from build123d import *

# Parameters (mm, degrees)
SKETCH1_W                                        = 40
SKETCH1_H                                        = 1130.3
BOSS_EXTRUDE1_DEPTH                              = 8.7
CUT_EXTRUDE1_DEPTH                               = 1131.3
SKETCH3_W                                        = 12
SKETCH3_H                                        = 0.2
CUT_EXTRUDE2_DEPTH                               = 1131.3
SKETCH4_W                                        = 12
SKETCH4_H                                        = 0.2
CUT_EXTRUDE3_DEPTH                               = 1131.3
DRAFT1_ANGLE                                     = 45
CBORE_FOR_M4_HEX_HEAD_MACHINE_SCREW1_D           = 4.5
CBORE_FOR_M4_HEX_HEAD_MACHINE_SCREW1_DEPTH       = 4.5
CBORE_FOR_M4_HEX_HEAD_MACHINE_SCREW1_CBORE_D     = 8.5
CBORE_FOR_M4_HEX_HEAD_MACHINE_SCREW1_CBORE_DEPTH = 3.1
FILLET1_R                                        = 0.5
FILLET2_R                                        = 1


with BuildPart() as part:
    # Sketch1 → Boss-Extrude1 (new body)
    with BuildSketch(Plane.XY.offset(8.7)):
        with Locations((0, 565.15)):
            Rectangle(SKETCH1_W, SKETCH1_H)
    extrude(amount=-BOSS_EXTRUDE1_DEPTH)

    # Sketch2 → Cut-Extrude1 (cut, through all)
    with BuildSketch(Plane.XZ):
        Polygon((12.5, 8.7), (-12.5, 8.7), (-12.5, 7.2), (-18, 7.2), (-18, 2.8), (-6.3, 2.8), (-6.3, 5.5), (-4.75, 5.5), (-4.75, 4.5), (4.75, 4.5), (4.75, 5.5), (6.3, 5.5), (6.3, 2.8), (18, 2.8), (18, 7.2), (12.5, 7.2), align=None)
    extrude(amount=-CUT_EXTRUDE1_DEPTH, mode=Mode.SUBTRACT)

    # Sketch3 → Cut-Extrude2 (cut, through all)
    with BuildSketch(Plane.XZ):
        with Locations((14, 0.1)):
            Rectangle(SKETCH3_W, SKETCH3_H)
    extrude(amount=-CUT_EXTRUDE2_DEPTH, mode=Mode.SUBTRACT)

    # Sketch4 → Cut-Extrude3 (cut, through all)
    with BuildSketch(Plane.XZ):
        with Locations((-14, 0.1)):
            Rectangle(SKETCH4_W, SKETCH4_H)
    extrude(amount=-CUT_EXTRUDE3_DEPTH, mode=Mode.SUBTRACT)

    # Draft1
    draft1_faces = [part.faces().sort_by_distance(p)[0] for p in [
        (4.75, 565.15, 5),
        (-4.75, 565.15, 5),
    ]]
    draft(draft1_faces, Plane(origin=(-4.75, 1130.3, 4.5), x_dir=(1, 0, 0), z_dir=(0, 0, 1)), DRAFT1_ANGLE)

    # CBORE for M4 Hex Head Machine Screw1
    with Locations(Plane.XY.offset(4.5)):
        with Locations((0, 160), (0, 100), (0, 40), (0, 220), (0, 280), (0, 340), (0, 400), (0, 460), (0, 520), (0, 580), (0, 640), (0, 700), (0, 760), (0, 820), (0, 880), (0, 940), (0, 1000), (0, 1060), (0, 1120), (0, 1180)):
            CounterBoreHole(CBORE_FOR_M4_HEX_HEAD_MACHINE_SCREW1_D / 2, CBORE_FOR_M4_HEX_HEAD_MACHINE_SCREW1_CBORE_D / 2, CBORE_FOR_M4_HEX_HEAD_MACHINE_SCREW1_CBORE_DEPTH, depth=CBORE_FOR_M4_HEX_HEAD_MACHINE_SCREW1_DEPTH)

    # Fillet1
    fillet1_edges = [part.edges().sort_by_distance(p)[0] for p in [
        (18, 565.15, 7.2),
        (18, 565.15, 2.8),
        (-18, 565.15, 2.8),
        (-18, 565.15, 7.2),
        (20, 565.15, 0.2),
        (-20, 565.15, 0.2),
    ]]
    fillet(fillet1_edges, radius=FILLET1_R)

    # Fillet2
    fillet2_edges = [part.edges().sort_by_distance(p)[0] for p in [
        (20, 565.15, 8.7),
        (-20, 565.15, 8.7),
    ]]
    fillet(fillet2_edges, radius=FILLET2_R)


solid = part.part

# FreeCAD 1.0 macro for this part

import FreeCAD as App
import Part
import Sketcher
from FreeCAD import Vector
Q = App.Units.Quantity


def edges_at(feature, points):
    """Names of the edges that pass closest to the given points."""
    edges = feature.Shape.Edges
    near = lambda p: min(range(len(edges)), key=lambda i: edges[i].distToShape(Part.Vertex(*p))[0])
    return sorted({f"Edge{near(p) + 1}" for p in points})


def faces_at(feature, points):
    """Names of the faces that lie closest to the given points."""
    faces = feature.Shape.Faces
    near = lambda p: min(range(len(faces)), key=lambda i: faces[i].distToShape(Part.Vertex(*p))[0])
    return sorted({f"Face{near(p) + 1}" for p in points})


def add_polygon(sketch, points):
    """Adds a closed chain of lines whose ends are joined by coincident constraints."""
    first, n = sketch.GeometryCount, len(points)
    for a, b in zip(points, points[1:] + points[:1]):
        sketch.addGeometry(Part.LineSegment(App.Vector(*a, 0), App.Vector(*b, 0)), False)
    for i in range(n):
        sketch.addConstraint(Sketcher.Constraint("Coincident", first + i, 2, first + (i + 1) % n, 1))

doc = App.newDocument("Part")
body = doc.addObject("PartDesign::Body", "Body")

# Sketch on XY plane
sketch1 = body.newObject("Sketcher::SketchObject", "Sketch")
sketch1.AttachmentSupport = (doc.getObject("XY_Plane"), [""])
sketch1.MapMode = "FlatFace"
sketch1.AttachmentOffset = App.Placement(Vector(0, 0, 8.7), App.Rotation())
add_polygon(sketch1, [(-20, 1130), (-20, 0), (20, 0), (20, 1130)])  # lines 0-3
sketch1.addConstraint(Sketcher.Constraint("Vertical", 0))
sketch1.addConstraint(Sketcher.Constraint("Horizontal", 1))
sketch1.addConstraint(Sketcher.Constraint("Vertical", 2))
sketch1.addConstraint(Sketcher.Constraint("Horizontal", 3))
sketch1.addConstraint(Sketcher.Constraint("Symmetric", 0, 2, 1, 2, -1, 1))
sketch1.addConstraint(Sketcher.Constraint("DistanceX", 1, 1, 1, 2, Q("40 mm")))
sketch1.addConstraint(Sketcher.Constraint("DistanceY", 0, 2, 0, 1, Q("1130.3 mm")))
pad1 = body.newObject("PartDesign::Pad", "Pad")
pad1.Profile = sketch1
pad1.Length = 8.7
pad1.Reversed = True

# Sketch on XZ plane
sketch2 = body.newObject("Sketcher::SketchObject", "Sketch001")
sketch2.AttachmentSupport = (doc.getObject("XZ_Plane"), [""])
sketch2.MapMode = "FlatFace"
add_polygon(sketch2, [(12.5, 8.7), (-12.5, 8.7), (-12.5, 7.2), (-18, 7.2), (-18, 2.8), (-6.3, 2.8), (-6.3, 5.5), (-4.8, 5.5), (-4.8, 4.5), (4.8, 4.5), (4.8, 5.5), (6.3, 5.5), (6.3, 2.8), (18, 2.8), (18, 7.2), (12.5, 7.2)])  # lines 0-15
sketch2.addConstraint(Sketcher.Constraint("Horizontal", 0))
sketch2.addConstraint(Sketcher.Constraint("Vertical", 1))
sketch2.addConstraint(Sketcher.Constraint("Horizontal", 2))
sketch2.addConstraint(Sketcher.Constraint("Vertical", 3))
sketch2.addConstraint(Sketcher.Constraint("Horizontal", 4))
sketch2.addConstraint(Sketcher.Constraint("Vertical", 5))
sketch2.addConstraint(Sketcher.Constraint("Horizontal", 6))
sketch2.addConstraint(Sketcher.Constraint("Vertical", 7))
sketch2.addConstraint(Sketcher.Constraint("Horizontal", 8))
sketch2.addConstraint(Sketcher.Constraint("Vertical", 9))
sketch2.addConstraint(Sketcher.Constraint("Horizontal", 10))
sketch2.addConstraint(Sketcher.Constraint("Vertical", 11))
sketch2.addConstraint(Sketcher.Constraint("Horizontal", 12))
sketch2.addConstraint(Sketcher.Constraint("Vertical", 13))
sketch2.addConstraint(Sketcher.Constraint("Horizontal", 14))
sketch2.addConstraint(Sketcher.Constraint("Vertical", 15))
sketch2.addConstraint(Sketcher.Constraint("Symmetric", 6, 2, 9, 2, -2))
sketch2.addConstraint(Sketcher.Constraint("Symmetric", 4, 2, 11, 2, -2))
sketch2.addConstraint(Sketcher.Constraint("Symmetric", 2, 2, 13, 2, -2))
sketch2.addConstraint(Sketcher.Constraint("Equal", 2, 14))
sketch2.addConstraint(Sketcher.Constraint("DistanceX", 0, 2, 0, 1, Q("25 mm")))
sketch2.addConstraint(Sketcher.Constraint("DistanceY", 7, 2, 7, 1, Q("1 mm")))
sketch2.addConstraint(Sketcher.Constraint("DistanceX", 2, 2, 2, 1, Q("5.5 mm")))
sketch2.addConstraint(Sketcher.Constraint("DistanceX", 4, 1, 4, 2, Q("11.7 mm")))
sketch2.addConstraint(Sketcher.Constraint("DistanceX", 8, 1, 8, 2, Q("9.5 mm")))
sketch2.addConstraint(Sketcher.Constraint("DistanceY", 1, 2, 1, 1, Q("1.5 mm")))
sketch2.addConstraint(Sketcher.Constraint("DistanceY", 3, 2, 3, 1, Q("4.4 mm")))
sketch2.addConstraint(Sketcher.Constraint("DistanceY", 5, 1, 5, 2, Q("2.7 mm")))
sketch2.addConstraint(Sketcher.Constraint("DistanceY", -1, 1, 0, 2, Q("8.7 mm")))
pocket1 = body.newObject("PartDesign::Pocket", "Pocket")
pocket1.Profile = sketch2
pocket1.Type = "ThroughAll"

# Sketch on XZ plane
sketch3 = body.newObject("Sketcher::SketchObject", "Sketch002")
sketch3.AttachmentSupport = (doc.getObject("XZ_Plane"), [""])
sketch3.MapMode = "FlatFace"
add_polygon(sketch3, [(8, 0.2), (8, 0), (20, 0), (20, 0.2)])  # lines 0-3
sketch3.addConstraint(Sketcher.Constraint("Vertical", 0))
sketch3.addConstraint(Sketcher.Constraint("Horizontal", 1))
sketch3.addConstraint(Sketcher.Constraint("Vertical", 2))
sketch3.addConstraint(Sketcher.Constraint("Horizontal", 3))
sketch3.addConstraint(Sketcher.Constraint("PointOnObject", 0, 2, -1))
sketch3.addConstraint(Sketcher.Constraint("DistanceX", 1, 1, 1, 2, Q("12 mm")))
sketch3.addConstraint(Sketcher.Constraint("DistanceY", 0, 2, 0, 1, Q("0.2 mm")))
sketch3.addConstraint(Sketcher.Constraint("DistanceX", -1, 1, 0, 2, Q("8 mm")))
pocket2 = body.newObject("PartDesign::Pocket", "Pocket001")
pocket2.Profile = sketch3
pocket2.Type = "ThroughAll"

# Sketch on XZ plane
sketch4 = body.newObject("Sketcher::SketchObject", "Sketch003")
sketch4.AttachmentSupport = (doc.getObject("XZ_Plane"), [""])
sketch4.MapMode = "FlatFace"
add_polygon(sketch4, [(-20, 0.2), (-20, 0), (-8, 0), (-8, 0.2)])  # lines 0-3
sketch4.addConstraint(Sketcher.Constraint("Vertical", 0))
sketch4.addConstraint(Sketcher.Constraint("Horizontal", 1))
sketch4.addConstraint(Sketcher.Constraint("Vertical", 2))
sketch4.addConstraint(Sketcher.Constraint("Horizontal", 3))
sketch4.addConstraint(Sketcher.Constraint("PointOnObject", 0, 2, -1))
sketch4.addConstraint(Sketcher.Constraint("DistanceX", 1, 1, 1, 2, Q("12 mm")))
sketch4.addConstraint(Sketcher.Constraint("DistanceY", 0, 2, 0, 1, Q("0.2 mm")))
sketch4.addConstraint(Sketcher.Constraint("DistanceX", 0, 2, -1, 1, Q("20 mm")))
pocket3 = body.newObject("PartDesign::Pocket", "Pocket002")
pocket3.Profile = sketch4
pocket3.Type = "ThroughAll"
doc.recompute()

datumplane = body.newObject("PartDesign::Plane", "DatumPlane")
datumplane.AttachmentSupport = (doc.getObject("XY_Plane"), [""])
datumplane.MapMode = "FlatFace"
datumplane.AttachmentOffset = App.Placement(Vector(0, 0, 4.5), App.Rotation())
draft = body.newObject("PartDesign::Draft", "Draft")
draft.Base = (pocket3, faces_at(pocket3, [(4.75, 565.15, 5), (-4.75, 565.15, 5)]))
draft.NeutralPlane = (datumplane, [""])
draft.Angle = 45
draft.Reversed = False

# Sketch on XY plane
sketch5 = body.newObject("Sketcher::SketchObject", "Sketch004")
sketch5.AttachmentSupport = (doc.getObject("XY_Plane"), [""])
sketch5.MapMode = "FlatFace"
sketch5.AttachmentOffset = App.Placement(Vector(0, 0, 4.5), App.Rotation())
sketch5.addGeometry(Part.Circle(Vector(0, 160, 0), Vector(0, 0, 1), 2.2), False)
sketch5.addGeometry(Part.Circle(Vector(0, 100, 0), Vector(0, 0, 1), 2.2), False)
sketch5.addGeometry(Part.Circle(Vector(0, 40, 0), Vector(0, 0, 1), 2.2), False)
sketch5.addGeometry(Part.Circle(Vector(0, 220, 0), Vector(0, 0, 1), 2.2), False)
sketch5.addGeometry(Part.Circle(Vector(0, 280, 0), Vector(0, 0, 1), 2.2), False)
sketch5.addGeometry(Part.Circle(Vector(0, 340, 0), Vector(0, 0, 1), 2.2), False)
sketch5.addGeometry(Part.Circle(Vector(0, 400, 0), Vector(0, 0, 1), 2.2), False)
sketch5.addGeometry(Part.Circle(Vector(0, 460, 0), Vector(0, 0, 1), 2.2), False)
sketch5.addGeometry(Part.Circle(Vector(0, 520, 0), Vector(0, 0, 1), 2.2), False)
sketch5.addGeometry(Part.Circle(Vector(0, 580, 0), Vector(0, 0, 1), 2.2), False)
sketch5.addGeometry(Part.Circle(Vector(0, 640, 0), Vector(0, 0, 1), 2.2), False)
sketch5.addGeometry(Part.Circle(Vector(0, 700, 0), Vector(0, 0, 1), 2.2), False)
sketch5.addGeometry(Part.Circle(Vector(0, 760, 0), Vector(0, 0, 1), 2.2), False)
sketch5.addGeometry(Part.Circle(Vector(0, 820, 0), Vector(0, 0, 1), 2.2), False)
sketch5.addGeometry(Part.Circle(Vector(0, 880, 0), Vector(0, 0, 1), 2.2), False)
sketch5.addGeometry(Part.Circle(Vector(0, 940, 0), Vector(0, 0, 1), 2.2), False)
sketch5.addGeometry(Part.Circle(Vector(0, 1000, 0), Vector(0, 0, 1), 2.2), False)
sketch5.addGeometry(Part.Circle(Vector(0, 1060, 0), Vector(0, 0, 1), 2.2), False)
sketch5.addGeometry(Part.Circle(Vector(0, 1120, 0), Vector(0, 0, 1), 2.2), False)
sketch5.addGeometry(Part.Circle(Vector(0, 1180, 0), Vector(0, 0, 1), 2.2), False)
sketch5.addConstraint(Sketcher.Constraint("Equal", 0, 1))
sketch5.addConstraint(Sketcher.Constraint("Equal", 1, 2))
sketch5.addConstraint(Sketcher.Constraint("Equal", 2, 3))
sketch5.addConstraint(Sketcher.Constraint("Equal", 3, 4))
sketch5.addConstraint(Sketcher.Constraint("Equal", 4, 5))
sketch5.addConstraint(Sketcher.Constraint("Equal", 5, 6))
sketch5.addConstraint(Sketcher.Constraint("Equal", 6, 7))
sketch5.addConstraint(Sketcher.Constraint("Equal", 7, 8))
sketch5.addConstraint(Sketcher.Constraint("Equal", 8, 9))
sketch5.addConstraint(Sketcher.Constraint("Equal", 9, 10))
sketch5.addConstraint(Sketcher.Constraint("Equal", 10, 11))
sketch5.addConstraint(Sketcher.Constraint("Equal", 11, 12))
sketch5.addConstraint(Sketcher.Constraint("Equal", 12, 13))
sketch5.addConstraint(Sketcher.Constraint("Equal", 13, 14))
sketch5.addConstraint(Sketcher.Constraint("Equal", 14, 15))
sketch5.addConstraint(Sketcher.Constraint("Equal", 15, 16))
sketch5.addConstraint(Sketcher.Constraint("Equal", 16, 17))
sketch5.addConstraint(Sketcher.Constraint("Equal", 17, 18))
sketch5.addConstraint(Sketcher.Constraint("Equal", 18, 19))
sketch5.addConstraint(Sketcher.Constraint("PointOnObject", 0, 3, -2))
sketch5.addConstraint(Sketcher.Constraint("PointOnObject", 1, 3, -2))
sketch5.addConstraint(Sketcher.Constraint("PointOnObject", 2, 3, -2))
sketch5.addConstraint(Sketcher.Constraint("PointOnObject", 3, 3, -2))
sketch5.addConstraint(Sketcher.Constraint("PointOnObject", 4, 3, -2))
sketch5.addConstraint(Sketcher.Constraint("PointOnObject", 5, 3, -2))
sketch5.addConstraint(Sketcher.Constraint("PointOnObject", 6, 3, -2))
sketch5.addConstraint(Sketcher.Constraint("PointOnObject", 7, 3, -2))
sketch5.addConstraint(Sketcher.Constraint("PointOnObject", 8, 3, -2))
sketch5.addConstraint(Sketcher.Constraint("PointOnObject", 9, 3, -2))
sketch5.addConstraint(Sketcher.Constraint("PointOnObject", 10, 3, -2))
sketch5.addConstraint(Sketcher.Constraint("PointOnObject", 11, 3, -2))
sketch5.addConstraint(Sketcher.Constraint("PointOnObject", 12, 3, -2))
sketch5.addConstraint(Sketcher.Constraint("PointOnObject", 13, 3, -2))
sketch5.addConstraint(Sketcher.Constraint("PointOnObject", 14, 3, -2))
sketch5.addConstraint(Sketcher.Constraint("PointOnObject", 15, 3, -2))
sketch5.addConstraint(Sketcher.Constraint("PointOnObject", 16, 3, -2))
sketch5.addConstraint(Sketcher.Constraint("PointOnObject", 17, 3, -2))
sketch5.addConstraint(Sketcher.Constraint("PointOnObject", 18, 3, -2))
sketch5.addConstraint(Sketcher.Constraint("PointOnObject", 19, 3, -2))
sketch5.addConstraint(Sketcher.Constraint("Diameter", 0, Q("4.5 mm")))
sketch5.addConstraint(Sketcher.Constraint("DistanceY", -1, 1, 0, 3, Q("160 mm")))
sketch5.addConstraint(Sketcher.Constraint("DistanceY", -1, 1, 1, 3, Q("100 mm")))
sketch5.addConstraint(Sketcher.Constraint("DistanceY", -1, 1, 2, 3, Q("40 mm")))
sketch5.addConstraint(Sketcher.Constraint("DistanceY", -1, 1, 3, 3, Q("220 mm")))
sketch5.addConstraint(Sketcher.Constraint("DistanceY", -1, 1, 4, 3, Q("280 mm")))
sketch5.addConstraint(Sketcher.Constraint("DistanceY", -1, 1, 5, 3, Q("340 mm")))
sketch5.addConstraint(Sketcher.Constraint("DistanceY", -1, 1, 6, 3, Q("400 mm")))
sketch5.addConstraint(Sketcher.Constraint("DistanceY", -1, 1, 7, 3, Q("460 mm")))
sketch5.addConstraint(Sketcher.Constraint("DistanceY", -1, 1, 8, 3, Q("520 mm")))
sketch5.addConstraint(Sketcher.Constraint("DistanceY", -1, 1, 9, 3, Q("580 mm")))
sketch5.addConstraint(Sketcher.Constraint("DistanceY", -1, 1, 10, 3, Q("640 mm")))
sketch5.addConstraint(Sketcher.Constraint("DistanceY", -1, 1, 11, 3, Q("700 mm")))
sketch5.addConstraint(Sketcher.Constraint("DistanceY", -1, 1, 12, 3, Q("760 mm")))
sketch5.addConstraint(Sketcher.Constraint("DistanceY", -1, 1, 13, 3, Q("820 mm")))
sketch5.addConstraint(Sketcher.Constraint("DistanceY", -1, 1, 14, 3, Q("880 mm")))
sketch5.addConstraint(Sketcher.Constraint("DistanceY", -1, 1, 15, 3, Q("940 mm")))
sketch5.addConstraint(Sketcher.Constraint("DistanceY", -1, 1, 16, 3, Q("1000 mm")))
sketch5.addConstraint(Sketcher.Constraint("DistanceY", -1, 1, 17, 3, Q("1060 mm")))
sketch5.addConstraint(Sketcher.Constraint("DistanceY", -1, 1, 18, 3, Q("1120 mm")))
sketch5.addConstraint(Sketcher.Constraint("DistanceY", -1, 1, 19, 3, Q("1180 mm")))
doc.recompute()
hole = body.newObject("PartDesign::Hole", "Hole")
hole.Profile = sketch5
hole.ThreadType = "None"
hole.Diameter = 4.5
hole.DepthType = "Dimension"
hole.Depth = 4.5
hole.DrillPoint = "Flat"
hole.HoleCutType = "Counterbore"
hole.HoleCutDiameter = 8.5
hole.HoleCutDepth = 3.1
doc.recompute()

fillet = body.newObject("PartDesign::Fillet", "Fillet")
fillet.Base = (hole, edges_at(hole, [
    (18, 565.15, 7.2),
    (18, 565.15, 2.8),
    (-18, 565.15, 2.8),
    (-18, 565.15, 7.2),
    (20, 565.15, 0.2),
    (-20, 565.15, 0.2),
]))
fillet.Radius = 0.5
doc.recompute()

fillet2 = body.newObject("PartDesign::Fillet", "Fillet001")
fillet2.Base = (fillet, edges_at(fillet, [(20, 565.15, 8.7), (-20, 565.15, 8.7)]))
fillet2.Radius = 1

doc.recompute()
